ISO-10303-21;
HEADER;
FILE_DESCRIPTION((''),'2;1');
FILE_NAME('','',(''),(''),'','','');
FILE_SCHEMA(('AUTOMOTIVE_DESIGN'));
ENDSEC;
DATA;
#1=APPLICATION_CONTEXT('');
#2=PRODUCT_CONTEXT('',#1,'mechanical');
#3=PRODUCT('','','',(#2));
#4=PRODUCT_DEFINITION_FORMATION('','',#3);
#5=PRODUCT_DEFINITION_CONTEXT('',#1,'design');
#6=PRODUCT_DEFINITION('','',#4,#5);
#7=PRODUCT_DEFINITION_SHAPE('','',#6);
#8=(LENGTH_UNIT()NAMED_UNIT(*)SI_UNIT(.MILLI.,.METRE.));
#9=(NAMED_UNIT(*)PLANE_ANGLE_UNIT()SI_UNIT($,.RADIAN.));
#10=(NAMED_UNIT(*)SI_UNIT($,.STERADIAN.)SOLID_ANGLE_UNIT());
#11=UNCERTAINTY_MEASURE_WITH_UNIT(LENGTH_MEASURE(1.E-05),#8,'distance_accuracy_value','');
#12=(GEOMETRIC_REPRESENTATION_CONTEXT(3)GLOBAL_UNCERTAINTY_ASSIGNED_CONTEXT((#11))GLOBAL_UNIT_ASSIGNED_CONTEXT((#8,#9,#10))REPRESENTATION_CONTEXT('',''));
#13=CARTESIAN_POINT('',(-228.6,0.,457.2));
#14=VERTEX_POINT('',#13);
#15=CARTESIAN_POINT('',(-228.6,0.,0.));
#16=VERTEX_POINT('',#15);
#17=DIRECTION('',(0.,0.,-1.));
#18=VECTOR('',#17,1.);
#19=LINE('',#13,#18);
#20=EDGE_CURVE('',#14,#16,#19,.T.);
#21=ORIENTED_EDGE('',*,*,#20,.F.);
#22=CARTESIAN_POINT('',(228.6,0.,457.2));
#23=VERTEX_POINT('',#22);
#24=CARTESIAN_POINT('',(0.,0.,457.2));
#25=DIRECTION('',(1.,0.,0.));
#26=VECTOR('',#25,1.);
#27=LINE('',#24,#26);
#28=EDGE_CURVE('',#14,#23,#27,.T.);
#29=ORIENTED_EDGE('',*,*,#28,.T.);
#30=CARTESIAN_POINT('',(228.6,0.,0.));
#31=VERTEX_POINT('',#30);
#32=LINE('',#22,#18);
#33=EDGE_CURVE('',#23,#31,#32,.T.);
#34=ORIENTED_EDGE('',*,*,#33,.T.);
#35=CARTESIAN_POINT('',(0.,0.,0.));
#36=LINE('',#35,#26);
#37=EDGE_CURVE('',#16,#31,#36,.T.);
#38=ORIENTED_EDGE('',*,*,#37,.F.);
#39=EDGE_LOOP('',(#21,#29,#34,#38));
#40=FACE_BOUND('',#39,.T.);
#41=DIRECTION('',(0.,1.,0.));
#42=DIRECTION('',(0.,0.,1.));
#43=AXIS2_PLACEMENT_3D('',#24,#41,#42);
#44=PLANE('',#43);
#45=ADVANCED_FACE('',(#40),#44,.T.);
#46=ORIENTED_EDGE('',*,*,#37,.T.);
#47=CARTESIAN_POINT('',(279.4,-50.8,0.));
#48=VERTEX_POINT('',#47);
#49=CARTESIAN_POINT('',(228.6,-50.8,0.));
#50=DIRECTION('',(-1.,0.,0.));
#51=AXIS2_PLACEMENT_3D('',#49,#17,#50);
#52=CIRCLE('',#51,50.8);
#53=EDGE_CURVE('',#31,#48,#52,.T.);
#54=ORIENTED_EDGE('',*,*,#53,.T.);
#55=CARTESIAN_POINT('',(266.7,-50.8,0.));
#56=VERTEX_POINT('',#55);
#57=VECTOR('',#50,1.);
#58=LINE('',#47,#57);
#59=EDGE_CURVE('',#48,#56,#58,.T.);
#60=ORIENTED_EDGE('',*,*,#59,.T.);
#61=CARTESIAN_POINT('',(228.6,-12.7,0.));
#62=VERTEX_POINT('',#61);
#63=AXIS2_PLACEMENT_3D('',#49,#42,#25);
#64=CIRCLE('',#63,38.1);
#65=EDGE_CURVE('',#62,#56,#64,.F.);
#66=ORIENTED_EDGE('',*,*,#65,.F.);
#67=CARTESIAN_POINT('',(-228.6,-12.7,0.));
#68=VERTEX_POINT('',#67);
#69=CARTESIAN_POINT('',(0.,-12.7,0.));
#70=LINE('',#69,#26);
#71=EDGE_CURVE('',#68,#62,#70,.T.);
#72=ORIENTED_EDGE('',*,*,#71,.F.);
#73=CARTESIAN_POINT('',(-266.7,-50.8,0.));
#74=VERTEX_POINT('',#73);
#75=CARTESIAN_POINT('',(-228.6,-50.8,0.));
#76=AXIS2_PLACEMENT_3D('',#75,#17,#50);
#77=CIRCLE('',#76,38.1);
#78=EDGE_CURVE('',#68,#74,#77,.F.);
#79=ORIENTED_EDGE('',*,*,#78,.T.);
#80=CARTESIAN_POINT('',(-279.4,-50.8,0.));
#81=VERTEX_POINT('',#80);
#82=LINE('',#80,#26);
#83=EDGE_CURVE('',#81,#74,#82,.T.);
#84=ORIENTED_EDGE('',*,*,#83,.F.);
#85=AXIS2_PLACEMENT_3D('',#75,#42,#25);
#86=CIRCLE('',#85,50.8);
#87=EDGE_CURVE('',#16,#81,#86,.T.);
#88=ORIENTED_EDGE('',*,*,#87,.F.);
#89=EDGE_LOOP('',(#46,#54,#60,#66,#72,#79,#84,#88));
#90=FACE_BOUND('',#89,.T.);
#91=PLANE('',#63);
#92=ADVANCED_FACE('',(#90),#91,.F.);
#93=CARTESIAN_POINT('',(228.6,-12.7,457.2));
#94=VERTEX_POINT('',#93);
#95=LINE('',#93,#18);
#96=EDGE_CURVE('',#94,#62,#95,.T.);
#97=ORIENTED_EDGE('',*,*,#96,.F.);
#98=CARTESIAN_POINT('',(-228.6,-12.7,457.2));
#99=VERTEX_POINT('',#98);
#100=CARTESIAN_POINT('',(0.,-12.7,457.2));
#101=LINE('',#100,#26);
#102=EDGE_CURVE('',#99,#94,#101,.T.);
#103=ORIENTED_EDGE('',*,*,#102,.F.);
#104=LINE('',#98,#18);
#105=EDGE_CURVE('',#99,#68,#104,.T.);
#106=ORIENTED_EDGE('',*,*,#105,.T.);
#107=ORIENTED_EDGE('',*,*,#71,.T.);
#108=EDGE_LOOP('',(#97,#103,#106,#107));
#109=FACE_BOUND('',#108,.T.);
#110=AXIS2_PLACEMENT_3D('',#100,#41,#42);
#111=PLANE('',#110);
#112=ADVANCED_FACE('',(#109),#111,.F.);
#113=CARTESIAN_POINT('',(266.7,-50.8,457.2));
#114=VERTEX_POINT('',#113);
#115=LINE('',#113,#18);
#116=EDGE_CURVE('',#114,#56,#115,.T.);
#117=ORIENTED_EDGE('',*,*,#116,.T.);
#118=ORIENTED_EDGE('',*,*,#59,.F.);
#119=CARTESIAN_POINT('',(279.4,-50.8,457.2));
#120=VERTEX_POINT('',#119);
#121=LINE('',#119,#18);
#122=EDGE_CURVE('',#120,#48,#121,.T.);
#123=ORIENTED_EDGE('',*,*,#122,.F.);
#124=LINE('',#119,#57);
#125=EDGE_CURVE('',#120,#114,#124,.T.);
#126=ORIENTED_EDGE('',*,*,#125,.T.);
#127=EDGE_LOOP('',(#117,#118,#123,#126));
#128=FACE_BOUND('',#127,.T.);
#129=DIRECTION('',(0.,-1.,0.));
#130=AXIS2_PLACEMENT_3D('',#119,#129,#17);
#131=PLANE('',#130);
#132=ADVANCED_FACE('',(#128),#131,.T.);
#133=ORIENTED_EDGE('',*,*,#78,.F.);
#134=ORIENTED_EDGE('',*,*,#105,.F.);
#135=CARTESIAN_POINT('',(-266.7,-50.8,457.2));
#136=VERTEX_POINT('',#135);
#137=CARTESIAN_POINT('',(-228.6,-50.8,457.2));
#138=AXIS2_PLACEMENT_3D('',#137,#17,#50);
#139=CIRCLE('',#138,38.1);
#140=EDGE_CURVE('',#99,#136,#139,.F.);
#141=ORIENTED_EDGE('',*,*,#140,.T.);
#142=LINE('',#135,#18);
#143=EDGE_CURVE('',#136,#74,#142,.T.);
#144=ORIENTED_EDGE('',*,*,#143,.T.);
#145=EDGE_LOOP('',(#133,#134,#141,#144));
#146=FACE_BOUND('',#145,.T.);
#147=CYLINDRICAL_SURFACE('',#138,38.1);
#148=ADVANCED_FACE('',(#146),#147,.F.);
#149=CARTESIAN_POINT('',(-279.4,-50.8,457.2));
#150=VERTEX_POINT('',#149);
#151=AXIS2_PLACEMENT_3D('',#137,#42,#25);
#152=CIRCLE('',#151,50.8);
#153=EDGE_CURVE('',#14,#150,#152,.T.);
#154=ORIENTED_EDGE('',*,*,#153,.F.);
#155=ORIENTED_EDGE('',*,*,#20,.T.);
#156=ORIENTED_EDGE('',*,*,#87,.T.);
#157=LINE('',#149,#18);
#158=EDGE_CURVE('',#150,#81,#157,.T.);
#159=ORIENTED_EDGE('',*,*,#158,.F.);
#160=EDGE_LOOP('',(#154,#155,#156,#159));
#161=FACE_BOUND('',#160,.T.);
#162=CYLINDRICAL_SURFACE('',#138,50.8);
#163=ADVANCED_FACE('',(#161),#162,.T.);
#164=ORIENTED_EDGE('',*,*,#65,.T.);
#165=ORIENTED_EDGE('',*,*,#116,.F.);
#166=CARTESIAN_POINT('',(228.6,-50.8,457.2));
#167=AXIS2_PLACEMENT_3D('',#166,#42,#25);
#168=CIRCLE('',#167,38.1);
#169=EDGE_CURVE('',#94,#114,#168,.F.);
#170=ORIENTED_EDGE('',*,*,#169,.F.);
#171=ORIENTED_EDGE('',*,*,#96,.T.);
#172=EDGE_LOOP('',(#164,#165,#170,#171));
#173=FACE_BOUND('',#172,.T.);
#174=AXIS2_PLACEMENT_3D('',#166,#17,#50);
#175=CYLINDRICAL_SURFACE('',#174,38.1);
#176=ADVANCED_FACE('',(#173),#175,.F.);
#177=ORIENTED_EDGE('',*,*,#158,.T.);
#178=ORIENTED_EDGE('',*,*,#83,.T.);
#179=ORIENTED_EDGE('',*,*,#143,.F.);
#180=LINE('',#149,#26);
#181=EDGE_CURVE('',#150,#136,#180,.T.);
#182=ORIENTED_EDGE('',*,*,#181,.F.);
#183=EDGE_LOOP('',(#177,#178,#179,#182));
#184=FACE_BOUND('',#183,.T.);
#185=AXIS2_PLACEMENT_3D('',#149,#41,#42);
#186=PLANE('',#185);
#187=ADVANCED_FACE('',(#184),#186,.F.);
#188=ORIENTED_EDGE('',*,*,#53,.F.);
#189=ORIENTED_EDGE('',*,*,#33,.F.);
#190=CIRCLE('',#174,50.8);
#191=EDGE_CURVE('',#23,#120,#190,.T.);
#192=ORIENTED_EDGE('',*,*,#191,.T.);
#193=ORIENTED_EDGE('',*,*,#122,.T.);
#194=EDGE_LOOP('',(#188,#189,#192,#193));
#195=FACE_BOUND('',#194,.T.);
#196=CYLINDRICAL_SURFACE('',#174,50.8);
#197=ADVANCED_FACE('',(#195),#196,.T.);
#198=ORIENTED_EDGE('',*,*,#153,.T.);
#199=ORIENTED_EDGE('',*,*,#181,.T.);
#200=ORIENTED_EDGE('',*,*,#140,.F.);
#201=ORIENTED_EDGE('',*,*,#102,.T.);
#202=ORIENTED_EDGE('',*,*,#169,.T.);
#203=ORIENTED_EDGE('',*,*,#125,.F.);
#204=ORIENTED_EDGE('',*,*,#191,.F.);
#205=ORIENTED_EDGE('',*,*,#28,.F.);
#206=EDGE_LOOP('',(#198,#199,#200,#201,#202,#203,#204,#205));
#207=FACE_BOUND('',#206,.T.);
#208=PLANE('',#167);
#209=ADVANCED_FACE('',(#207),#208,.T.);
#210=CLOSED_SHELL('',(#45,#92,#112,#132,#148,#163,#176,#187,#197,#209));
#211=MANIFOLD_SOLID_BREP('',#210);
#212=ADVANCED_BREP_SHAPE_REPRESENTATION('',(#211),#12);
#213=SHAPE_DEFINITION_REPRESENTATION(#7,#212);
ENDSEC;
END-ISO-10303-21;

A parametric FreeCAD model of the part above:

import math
import FreeCAD as App
import Part
import Sketcher
Q = App.Units.Quantity

doc = App.newDocument("Part")
params = doc.addObject("Spreadsheet::Sheet", "Params")
for row, (alias, value) in enumerate([
    ("sketch1_radius", "2 in"),
    ("sketch1_radius2", "1.5 in"),
    ("sketch1_width", "9 in"),
    ("pad1_length", "18 in"),
], start=1):
    params.set(f"A{row}", alias)
    params.set(f"B{row}", "=" + value)
    params.setAlias(f"B{row}", alias)

body = doc.addObject("PartDesign::Body", "Body")

# Sketch on XY plane
sketch1 = body.newObject("Sketcher::SketchObject", "Sketch")
sketch1.AttachmentSupport = (doc.getObject("XY_Plane"), [""])
sketch1.MapMode = "FlatFace"
sketch1.addGeometry([
    Part.LineSegment(App.Vector(229, 0, 0), App.Vector(0, 0, 0)),  # 0
    Part.LineSegment(App.Vector(0, 0, 0), App.Vector(0, -13, 0)),  # 1
    Part.LineSegment(App.Vector(0, -13, 0), App.Vector(229, -13, 0)),  # 2
    Part.ArcOfCircle(Part.Circle(App.Vector(229, -51, 0), App.Vector(0, 0, 1), 38), math.radians(0), math.radians(90)),  # 3
    Part.LineSegment(App.Vector(267, -51, 0), App.Vector(279, -51, 0)),  # 4
    Part.ArcOfCircle(Part.Circle(App.Vector(229, -51, 0), App.Vector(0, 0, 1), 51), math.radians(0), math.radians(90)),  # 5
], False)
sketch1.addConstraint([
    Sketcher.Constraint("Coincident", 0, 2, 1, 1),
    Sketcher.Constraint("Coincident", 1, 2, 2, 1),
    Sketcher.Constraint("Tangent", 2, 2, 3, 2),
    Sketcher.Constraint("Coincident", 3, 1, 4, 1),
    Sketcher.Constraint("Coincident", 4, 2, 5, 1),
    Sketcher.Constraint("Tangent", 5, 2, 0, 1),
    Sketcher.Constraint("Horizontal", 0),
    Sketcher.Constraint("Vertical", 1),
    Sketcher.Constraint("Horizontal", 2),
    Sketcher.Constraint("Horizontal", 4),
    Sketcher.Constraint("Coincident", 0, 2, -1, 1),
    Sketcher.Constraint("Coincident", 5, 3, 3, 3),
    Sketcher.Constraint("Horizontal", 5, 3, 3, 1),
    Sketcher.Constraint("Radius", 5, Q("2 in")),
    Sketcher.Constraint("Radius", 3, Q("1.5 in")),
    Sketcher.Constraint("DistanceX", 0, 2, 0, 1, Q("9 in")),
])
sketch1.setExpression("Constraints[13]", "Params.sketch1_radius")
sketch1.setExpression("Constraints[14]", "Params.sketch1_radius2")
sketch1.setExpression("Constraints[15]", "Params.sketch1_width")
pad1 = body.newObject("PartDesign::Pad", "Pad")
pad1.Profile = sketch1
pad1.setExpression("Length", "Params.pad1_length")
doc.recompute()

mirrored = body.newObject("PartDesign::Mirrored", "Mirrored")
mirrored.Originals = [pad1]
mirrored.MirrorPlane = (doc.getObject("YZ_Plane"), [""])
body.Tip = mirrored

doc.recompute()
